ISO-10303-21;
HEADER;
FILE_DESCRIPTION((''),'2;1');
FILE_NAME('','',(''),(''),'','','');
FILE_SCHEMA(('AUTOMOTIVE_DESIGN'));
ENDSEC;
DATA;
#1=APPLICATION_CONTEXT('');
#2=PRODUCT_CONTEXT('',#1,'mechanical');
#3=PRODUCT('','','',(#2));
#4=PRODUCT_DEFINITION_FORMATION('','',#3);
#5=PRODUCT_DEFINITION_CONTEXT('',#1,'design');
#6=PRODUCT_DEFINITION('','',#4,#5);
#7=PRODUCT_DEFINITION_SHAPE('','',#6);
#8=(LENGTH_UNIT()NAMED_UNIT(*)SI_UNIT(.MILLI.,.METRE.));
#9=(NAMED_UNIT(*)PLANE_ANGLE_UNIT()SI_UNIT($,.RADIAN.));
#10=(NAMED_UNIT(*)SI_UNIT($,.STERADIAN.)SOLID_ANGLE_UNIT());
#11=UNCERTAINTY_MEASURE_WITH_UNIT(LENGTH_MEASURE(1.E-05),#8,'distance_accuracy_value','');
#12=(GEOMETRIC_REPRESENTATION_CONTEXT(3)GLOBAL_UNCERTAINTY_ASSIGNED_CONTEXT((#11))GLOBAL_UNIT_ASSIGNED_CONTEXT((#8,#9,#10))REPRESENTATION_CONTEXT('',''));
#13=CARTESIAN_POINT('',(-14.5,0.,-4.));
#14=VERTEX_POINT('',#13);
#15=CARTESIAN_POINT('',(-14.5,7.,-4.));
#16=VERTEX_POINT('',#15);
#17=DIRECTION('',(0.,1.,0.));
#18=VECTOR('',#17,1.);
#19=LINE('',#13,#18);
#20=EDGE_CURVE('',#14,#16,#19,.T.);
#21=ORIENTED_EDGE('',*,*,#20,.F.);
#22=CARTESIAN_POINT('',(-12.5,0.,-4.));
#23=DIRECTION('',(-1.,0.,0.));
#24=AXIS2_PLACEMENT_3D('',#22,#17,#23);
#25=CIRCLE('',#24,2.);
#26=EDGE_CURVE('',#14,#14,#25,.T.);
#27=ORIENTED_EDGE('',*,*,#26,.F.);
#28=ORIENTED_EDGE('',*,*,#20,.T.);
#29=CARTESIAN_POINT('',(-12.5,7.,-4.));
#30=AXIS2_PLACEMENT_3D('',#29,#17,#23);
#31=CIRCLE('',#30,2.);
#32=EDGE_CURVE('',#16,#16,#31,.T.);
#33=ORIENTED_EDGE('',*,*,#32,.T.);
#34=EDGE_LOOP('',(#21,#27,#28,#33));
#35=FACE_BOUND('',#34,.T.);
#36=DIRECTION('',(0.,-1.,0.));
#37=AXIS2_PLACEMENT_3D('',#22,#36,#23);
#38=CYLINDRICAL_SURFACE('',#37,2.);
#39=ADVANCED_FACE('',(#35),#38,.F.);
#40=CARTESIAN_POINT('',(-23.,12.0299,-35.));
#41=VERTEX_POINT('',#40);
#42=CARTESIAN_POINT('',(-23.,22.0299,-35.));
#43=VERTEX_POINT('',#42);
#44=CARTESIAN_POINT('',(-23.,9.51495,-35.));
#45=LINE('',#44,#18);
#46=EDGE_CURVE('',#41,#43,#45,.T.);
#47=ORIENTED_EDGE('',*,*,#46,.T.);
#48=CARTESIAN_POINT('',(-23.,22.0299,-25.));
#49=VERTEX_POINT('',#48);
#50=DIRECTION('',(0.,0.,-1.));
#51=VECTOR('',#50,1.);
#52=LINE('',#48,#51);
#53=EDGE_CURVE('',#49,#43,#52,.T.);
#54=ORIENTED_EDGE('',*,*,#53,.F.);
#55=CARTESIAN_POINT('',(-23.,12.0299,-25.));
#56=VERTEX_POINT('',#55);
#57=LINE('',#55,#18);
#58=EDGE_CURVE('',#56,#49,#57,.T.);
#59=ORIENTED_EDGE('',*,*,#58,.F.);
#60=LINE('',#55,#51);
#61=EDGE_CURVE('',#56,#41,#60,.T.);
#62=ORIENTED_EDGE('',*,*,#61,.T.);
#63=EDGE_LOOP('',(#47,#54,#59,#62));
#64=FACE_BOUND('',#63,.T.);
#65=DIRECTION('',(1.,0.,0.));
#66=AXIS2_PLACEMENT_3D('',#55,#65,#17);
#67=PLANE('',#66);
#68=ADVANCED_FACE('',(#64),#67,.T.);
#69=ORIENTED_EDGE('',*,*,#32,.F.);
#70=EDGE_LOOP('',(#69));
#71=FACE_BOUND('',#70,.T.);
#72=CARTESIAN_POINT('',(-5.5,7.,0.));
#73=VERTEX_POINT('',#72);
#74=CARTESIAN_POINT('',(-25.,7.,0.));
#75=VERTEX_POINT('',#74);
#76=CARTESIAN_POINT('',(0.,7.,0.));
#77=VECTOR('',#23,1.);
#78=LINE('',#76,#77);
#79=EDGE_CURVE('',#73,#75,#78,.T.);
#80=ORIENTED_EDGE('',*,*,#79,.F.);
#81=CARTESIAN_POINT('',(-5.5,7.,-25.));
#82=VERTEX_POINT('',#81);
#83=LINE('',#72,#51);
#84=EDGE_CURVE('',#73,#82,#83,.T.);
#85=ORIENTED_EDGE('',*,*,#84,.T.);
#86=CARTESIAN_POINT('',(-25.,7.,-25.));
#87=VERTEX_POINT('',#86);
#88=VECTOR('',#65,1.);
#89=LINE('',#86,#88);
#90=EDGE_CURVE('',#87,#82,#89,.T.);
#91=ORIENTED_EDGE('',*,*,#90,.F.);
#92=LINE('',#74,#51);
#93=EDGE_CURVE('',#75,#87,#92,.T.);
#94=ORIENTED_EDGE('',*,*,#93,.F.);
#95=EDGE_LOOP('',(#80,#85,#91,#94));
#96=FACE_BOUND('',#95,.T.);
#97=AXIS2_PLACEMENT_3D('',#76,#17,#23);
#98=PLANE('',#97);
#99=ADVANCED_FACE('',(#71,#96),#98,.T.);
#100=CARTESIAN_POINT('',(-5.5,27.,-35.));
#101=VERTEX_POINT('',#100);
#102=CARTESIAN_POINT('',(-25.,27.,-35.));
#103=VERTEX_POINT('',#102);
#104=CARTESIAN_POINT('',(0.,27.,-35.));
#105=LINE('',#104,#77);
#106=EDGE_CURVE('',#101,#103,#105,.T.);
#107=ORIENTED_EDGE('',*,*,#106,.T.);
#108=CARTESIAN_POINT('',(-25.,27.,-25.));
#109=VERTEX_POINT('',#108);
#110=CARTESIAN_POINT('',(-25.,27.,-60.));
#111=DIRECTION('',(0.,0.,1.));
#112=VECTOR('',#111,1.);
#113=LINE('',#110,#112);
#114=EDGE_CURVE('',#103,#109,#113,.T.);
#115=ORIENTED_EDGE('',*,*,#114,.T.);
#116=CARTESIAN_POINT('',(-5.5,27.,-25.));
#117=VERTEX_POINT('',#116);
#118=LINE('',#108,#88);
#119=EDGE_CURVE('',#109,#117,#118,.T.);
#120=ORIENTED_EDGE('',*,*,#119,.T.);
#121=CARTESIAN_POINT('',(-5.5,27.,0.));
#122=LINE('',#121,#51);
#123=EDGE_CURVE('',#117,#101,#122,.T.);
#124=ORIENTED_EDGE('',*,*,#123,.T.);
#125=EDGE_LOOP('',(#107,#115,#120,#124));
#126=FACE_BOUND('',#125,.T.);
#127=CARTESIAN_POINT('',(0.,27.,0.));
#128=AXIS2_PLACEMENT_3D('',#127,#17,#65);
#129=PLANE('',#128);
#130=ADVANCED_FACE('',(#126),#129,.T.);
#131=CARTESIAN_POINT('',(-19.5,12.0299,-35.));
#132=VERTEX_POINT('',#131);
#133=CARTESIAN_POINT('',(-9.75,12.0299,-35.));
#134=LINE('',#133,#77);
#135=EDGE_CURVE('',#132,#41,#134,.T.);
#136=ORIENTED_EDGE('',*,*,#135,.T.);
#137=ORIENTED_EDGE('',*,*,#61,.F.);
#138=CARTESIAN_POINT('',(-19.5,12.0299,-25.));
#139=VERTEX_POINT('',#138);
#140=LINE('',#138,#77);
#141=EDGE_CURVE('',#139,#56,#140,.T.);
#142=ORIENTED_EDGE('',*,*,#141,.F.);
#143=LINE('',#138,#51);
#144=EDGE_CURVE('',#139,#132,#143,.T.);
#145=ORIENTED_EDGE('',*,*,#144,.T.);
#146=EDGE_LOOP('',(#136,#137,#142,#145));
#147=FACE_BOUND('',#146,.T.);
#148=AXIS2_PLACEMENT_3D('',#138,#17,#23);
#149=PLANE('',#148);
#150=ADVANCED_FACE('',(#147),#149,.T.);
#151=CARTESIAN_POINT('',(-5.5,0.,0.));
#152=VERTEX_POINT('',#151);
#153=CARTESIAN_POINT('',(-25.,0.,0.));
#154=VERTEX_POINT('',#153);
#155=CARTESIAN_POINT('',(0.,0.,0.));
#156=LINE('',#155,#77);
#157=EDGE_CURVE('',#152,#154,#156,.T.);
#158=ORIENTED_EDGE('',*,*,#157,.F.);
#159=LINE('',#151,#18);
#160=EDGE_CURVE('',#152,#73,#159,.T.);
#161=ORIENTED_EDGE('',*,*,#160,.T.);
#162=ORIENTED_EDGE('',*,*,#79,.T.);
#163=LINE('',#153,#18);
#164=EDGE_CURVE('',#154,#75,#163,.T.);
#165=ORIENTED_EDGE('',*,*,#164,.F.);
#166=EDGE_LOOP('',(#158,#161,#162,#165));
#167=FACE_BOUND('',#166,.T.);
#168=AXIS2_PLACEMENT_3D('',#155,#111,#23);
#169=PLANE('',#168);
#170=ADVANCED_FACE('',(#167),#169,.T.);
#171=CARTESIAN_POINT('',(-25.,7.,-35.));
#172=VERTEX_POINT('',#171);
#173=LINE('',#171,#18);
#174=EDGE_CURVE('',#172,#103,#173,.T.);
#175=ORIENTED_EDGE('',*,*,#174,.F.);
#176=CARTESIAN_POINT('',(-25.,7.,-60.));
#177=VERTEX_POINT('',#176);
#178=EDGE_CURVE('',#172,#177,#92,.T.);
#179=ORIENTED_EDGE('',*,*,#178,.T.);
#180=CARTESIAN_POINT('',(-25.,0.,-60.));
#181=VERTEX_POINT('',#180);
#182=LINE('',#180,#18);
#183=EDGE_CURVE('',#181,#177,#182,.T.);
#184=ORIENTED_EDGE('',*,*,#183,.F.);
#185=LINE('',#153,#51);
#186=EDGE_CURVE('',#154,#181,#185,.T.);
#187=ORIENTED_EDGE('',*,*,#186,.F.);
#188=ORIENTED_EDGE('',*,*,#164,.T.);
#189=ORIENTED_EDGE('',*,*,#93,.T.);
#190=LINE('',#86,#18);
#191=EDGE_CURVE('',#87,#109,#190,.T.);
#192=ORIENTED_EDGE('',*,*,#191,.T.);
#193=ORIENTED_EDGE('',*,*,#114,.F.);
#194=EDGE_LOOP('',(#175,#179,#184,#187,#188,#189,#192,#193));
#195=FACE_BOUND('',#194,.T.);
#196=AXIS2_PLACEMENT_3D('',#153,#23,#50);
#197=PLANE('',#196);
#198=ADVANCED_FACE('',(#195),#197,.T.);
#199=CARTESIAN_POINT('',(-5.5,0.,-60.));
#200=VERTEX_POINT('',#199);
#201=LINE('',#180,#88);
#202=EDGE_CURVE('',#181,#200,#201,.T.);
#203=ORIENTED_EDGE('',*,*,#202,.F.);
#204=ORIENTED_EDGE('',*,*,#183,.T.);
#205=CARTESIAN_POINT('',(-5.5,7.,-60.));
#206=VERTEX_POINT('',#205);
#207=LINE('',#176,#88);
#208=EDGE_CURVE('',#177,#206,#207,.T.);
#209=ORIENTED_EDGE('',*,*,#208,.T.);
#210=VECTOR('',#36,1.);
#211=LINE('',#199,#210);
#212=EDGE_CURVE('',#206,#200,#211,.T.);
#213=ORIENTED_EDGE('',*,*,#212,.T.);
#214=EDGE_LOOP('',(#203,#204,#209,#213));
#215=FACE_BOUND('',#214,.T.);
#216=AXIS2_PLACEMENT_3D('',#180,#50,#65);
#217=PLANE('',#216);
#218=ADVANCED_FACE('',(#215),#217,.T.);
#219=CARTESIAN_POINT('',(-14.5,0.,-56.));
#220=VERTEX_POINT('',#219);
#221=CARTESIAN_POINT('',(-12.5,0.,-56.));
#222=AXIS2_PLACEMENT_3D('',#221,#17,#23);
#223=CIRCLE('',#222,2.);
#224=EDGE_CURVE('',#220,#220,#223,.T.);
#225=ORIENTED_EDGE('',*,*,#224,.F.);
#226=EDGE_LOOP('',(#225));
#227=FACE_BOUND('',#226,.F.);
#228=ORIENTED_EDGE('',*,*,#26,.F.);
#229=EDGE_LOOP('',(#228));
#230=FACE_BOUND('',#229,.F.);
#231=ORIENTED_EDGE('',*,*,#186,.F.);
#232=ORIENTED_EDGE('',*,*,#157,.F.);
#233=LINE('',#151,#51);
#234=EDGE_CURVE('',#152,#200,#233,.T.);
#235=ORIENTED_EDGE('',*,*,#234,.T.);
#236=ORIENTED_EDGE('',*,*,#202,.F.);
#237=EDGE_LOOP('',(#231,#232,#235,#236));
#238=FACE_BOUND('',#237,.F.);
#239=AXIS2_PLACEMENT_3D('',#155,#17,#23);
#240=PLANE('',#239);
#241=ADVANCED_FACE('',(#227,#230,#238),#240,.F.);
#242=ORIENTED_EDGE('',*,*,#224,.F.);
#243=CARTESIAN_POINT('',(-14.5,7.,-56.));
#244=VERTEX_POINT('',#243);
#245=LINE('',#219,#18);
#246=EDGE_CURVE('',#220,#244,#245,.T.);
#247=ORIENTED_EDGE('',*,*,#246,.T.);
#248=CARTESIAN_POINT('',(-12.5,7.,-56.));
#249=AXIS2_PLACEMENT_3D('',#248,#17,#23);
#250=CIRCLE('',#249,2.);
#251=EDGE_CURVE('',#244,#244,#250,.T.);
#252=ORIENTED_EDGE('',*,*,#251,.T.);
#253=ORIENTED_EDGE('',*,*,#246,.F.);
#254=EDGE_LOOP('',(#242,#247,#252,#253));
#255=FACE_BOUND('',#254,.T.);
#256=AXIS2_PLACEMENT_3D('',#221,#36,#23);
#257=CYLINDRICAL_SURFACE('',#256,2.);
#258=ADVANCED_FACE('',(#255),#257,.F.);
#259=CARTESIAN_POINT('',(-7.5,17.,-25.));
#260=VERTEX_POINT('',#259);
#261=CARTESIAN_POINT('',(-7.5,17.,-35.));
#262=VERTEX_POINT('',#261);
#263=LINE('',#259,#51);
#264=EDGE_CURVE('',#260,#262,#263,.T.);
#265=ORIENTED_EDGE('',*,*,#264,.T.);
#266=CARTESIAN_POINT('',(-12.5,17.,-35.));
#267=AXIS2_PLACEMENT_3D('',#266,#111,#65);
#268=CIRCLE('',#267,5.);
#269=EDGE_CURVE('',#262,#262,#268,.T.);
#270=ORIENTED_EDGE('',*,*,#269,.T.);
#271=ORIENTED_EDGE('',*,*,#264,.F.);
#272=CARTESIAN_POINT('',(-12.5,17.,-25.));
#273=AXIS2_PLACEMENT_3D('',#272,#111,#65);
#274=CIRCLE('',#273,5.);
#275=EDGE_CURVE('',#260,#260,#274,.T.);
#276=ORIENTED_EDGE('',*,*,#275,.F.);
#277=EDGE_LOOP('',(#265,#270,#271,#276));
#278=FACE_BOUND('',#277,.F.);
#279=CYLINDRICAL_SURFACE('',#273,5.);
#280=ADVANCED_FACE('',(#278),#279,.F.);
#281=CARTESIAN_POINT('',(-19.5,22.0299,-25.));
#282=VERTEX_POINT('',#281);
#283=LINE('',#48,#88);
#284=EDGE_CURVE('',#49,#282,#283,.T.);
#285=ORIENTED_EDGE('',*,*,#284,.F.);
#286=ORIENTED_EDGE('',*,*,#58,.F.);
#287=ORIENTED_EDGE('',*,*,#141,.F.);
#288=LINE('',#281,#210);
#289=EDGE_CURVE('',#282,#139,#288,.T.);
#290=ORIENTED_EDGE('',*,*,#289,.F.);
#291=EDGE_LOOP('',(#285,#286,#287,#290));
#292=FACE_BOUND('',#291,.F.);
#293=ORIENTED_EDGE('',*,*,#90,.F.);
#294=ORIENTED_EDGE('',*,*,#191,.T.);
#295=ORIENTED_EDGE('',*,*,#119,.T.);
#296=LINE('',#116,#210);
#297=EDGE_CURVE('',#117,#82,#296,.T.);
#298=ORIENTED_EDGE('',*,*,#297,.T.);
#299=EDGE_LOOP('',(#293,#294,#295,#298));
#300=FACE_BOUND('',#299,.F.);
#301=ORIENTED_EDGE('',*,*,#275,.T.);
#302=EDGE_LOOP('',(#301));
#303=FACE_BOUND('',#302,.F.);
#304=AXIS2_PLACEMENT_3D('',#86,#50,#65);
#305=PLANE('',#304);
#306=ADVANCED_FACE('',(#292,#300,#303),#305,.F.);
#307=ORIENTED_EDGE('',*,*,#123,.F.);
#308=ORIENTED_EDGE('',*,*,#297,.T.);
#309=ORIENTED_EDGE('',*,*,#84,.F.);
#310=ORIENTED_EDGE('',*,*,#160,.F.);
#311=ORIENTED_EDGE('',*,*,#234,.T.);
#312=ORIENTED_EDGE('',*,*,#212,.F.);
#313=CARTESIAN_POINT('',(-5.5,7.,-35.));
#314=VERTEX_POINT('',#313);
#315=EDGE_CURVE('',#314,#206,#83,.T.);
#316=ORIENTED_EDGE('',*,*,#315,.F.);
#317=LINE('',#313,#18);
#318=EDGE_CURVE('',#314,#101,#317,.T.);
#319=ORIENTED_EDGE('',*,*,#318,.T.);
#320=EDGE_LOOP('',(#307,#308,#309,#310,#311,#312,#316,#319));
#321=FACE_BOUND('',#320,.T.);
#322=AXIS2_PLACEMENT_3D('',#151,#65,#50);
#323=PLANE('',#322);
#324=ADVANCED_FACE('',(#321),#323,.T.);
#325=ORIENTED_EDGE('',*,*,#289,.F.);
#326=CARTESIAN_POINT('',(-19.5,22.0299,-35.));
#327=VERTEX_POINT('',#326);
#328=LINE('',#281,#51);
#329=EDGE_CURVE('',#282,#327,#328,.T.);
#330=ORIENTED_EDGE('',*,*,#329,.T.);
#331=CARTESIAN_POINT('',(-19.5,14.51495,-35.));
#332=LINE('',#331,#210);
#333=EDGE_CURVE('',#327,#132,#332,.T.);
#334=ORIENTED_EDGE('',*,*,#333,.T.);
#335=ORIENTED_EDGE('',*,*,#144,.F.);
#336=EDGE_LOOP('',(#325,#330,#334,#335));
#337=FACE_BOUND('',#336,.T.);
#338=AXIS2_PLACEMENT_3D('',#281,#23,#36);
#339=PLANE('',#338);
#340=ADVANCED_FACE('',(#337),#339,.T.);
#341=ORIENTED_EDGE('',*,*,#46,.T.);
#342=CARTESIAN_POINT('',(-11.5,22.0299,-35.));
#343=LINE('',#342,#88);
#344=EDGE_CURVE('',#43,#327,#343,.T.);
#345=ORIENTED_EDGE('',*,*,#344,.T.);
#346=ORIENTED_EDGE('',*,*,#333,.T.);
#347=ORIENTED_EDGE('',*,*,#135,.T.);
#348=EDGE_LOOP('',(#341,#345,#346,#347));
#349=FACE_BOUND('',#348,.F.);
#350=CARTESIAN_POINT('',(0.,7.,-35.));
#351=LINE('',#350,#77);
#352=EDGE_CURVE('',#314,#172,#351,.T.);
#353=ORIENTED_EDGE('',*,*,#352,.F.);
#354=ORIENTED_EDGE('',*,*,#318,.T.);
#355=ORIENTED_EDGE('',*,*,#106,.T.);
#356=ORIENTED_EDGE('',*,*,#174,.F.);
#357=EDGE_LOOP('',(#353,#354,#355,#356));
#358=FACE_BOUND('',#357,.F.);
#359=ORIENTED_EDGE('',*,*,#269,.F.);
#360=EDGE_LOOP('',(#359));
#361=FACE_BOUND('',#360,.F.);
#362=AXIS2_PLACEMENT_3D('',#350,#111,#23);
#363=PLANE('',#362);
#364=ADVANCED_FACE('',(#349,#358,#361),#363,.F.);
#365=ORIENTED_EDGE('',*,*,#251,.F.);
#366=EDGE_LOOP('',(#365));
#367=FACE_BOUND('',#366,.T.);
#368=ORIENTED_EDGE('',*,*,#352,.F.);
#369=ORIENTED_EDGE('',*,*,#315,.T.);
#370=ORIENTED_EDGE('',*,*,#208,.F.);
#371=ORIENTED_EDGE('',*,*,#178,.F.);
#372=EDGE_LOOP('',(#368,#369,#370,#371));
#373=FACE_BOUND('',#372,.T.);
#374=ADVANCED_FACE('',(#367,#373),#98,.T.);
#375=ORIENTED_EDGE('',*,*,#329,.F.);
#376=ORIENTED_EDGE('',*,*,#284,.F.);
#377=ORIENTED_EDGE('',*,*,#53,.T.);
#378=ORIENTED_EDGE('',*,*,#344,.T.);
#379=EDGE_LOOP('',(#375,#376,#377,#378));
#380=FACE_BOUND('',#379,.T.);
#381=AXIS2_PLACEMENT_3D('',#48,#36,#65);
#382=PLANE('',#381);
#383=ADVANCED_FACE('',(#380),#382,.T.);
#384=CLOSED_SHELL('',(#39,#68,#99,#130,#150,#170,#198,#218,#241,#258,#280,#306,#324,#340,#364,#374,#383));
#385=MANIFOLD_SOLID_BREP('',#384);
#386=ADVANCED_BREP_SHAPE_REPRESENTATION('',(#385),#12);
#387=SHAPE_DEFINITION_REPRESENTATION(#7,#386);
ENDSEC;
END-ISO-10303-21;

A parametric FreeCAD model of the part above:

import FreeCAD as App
import Part
import Sketcher
from FreeCAD import Vector

doc = App.newDocument("Part")
body = doc.addObject("PartDesign::Body", "Body")

# Sketch on XZ plane
sketch1 = body.newObject("Sketcher::SketchObject", "Sketch")
sketch1.AttachmentSupport = (doc.getObject("XZ_Plane"), [""])
sketch1.MapMode = "FlatFace"
sketch1.addGeometry([
    Part.LineSegment(Vector(-25, 0, 0), Vector(0, 0, 0)),  # 0
    Part.LineSegment(Vector(0, 0, 0), Vector(0, -60, 0)),  # 1
    Part.LineSegment(Vector(0, -60, 0), Vector(-25, -60, 0)),  # 2
    Part.LineSegment(Vector(-25, -60, 0), Vector(-25, 0, 0)),  # 3
    Part.Circle(Vector(-12.5, -56, 0), Vector(0, 0, 1), 2),  # 4
    Part.Circle(Vector(-12.5, -4, 0), Vector(0, 0, 1), 2),  # 5
], False)
sketch1.addConstraint([
    Sketcher.Constraint("Coincident", 0, 2, 1, 1),
    Sketcher.Constraint("Coincident", 1, 2, 2, 1),
    Sketcher.Constraint("Coincident", 2, 2, 3, 1),
    Sketcher.Constraint("Coincident", 3, 2, 0, 1),
    Sketcher.Constraint("Horizontal", 0),
    Sketcher.Constraint("Vertical", 1),
    Sketcher.Constraint("Horizontal", 2),
    Sketcher.Constraint("Vertical", 3),
    Sketcher.Constraint("Coincident", 0, 2, -1, 1),
    Sketcher.Constraint("Equal", 4, 5),
    Sketcher.Constraint("Vertical", 4, 3, 5, 3),
    Sketcher.Constraint("Diameter", 4, 4.0),
    Sketcher.Constraint("DistanceX", 0, 1, 0, 2, 25.0),
    Sketcher.Constraint("DistanceY", 1, 2, 1, 1, 60.0),
    Sketcher.Constraint("DistanceY", 5, 3, -1, 1, 4.0),
    Sketcher.Constraint("DistanceY", 4, 3, 5, 3, 52.0),
    Sketcher.Constraint("DistanceX", 4, 3, -1, 1, 12.5),
])
pad1 = body.newObject("PartDesign::Pad", "Pad")
pad1.Profile = sketch1
pad1.Length = 7
pad1.Reversed = True

# Sketch on XZ plane
sketch2 = body.newObject("Sketcher::SketchObject", "Sketch001")
sketch2.AttachmentSupport = (doc.getObject("XZ_Plane"), [""])
sketch2.MapMode = "FlatFace"
sketch2.AttachmentOffset = App.Placement(Vector(0, 0, -7), App.Rotation())
sketch2.addGeometry([
    Part.LineSegment(Vector(0, -35, 0), Vector(-25, -35, 0)),
    Part.LineSegment(Vector(-25, -35, 0), Vector(-25, -25, 0)),
    Part.LineSegment(Vector(-25, -25, 0), Vector(0, -25, 0)),
    Part.LineSegment(Vector(0, -25, 0), Vector(0, -35, 0)),
], False)
sketch2.addConstraint([
    Sketcher.Constraint("Coincident", 0, 2, 1, 1),
    Sketcher.Constraint("Coincident", 1, 2, 2, 1),
    Sketcher.Constraint("Coincident", 2, 2, 3, 1),
    Sketcher.Constraint("Coincident", 3, 2, 0, 1),
    Sketcher.Constraint("Horizontal", 0),
    Sketcher.Constraint("Vertical", 1),
    Sketcher.Constraint("Horizontal", 2),
    Sketcher.Constraint("Vertical", 3),
    Sketcher.Constraint("PointOnObject", 2, 2, -2),
    Sketcher.Constraint("DistanceX", 0, 2, 0, 1, 25.0),
    Sketcher.Constraint("DistanceY", 1, 1, 1, 2, 10.0),
    Sketcher.Constraint("DistanceY", 1, 2, -1, 1, 25.0),
])
pad2 = body.newObject("PartDesign::Pad", "Pad001")
pad2.Profile = sketch2
pad2.Length = 20
pad2.Reversed = True

# Sketch on XY plane
sketch3 = body.newObject("Sketcher::SketchObject", "Sketch002")
sketch3.AttachmentSupport = (doc.getObject("XY_Plane"), [""])
sketch3.MapMode = "FlatFace"
sketch3.AttachmentOffset = App.Placement(Vector(0, 0, -25), App.Rotation())
sketch3.addGeometry([
    Part.Circle(Vector(-12.5, 17, 0), Vector(0, 0, 1), 5),  # 0
    Part.LineSegment(Vector(-19.5, 22, 0), Vector(-23, 22, 0)),  # 1
    Part.LineSegment(Vector(-23, 22, 0), Vector(-23, 12, 0)),  # 2
    Part.LineSegment(Vector(-23, 12, 0), Vector(-19.5, 12, 0)),  # 3
    Part.LineSegment(Vector(-19.5, 12, 0), Vector(-19.5, 22, 0)),  # 4
    Part.LineSegment(Vector(-2, 22, 0), Vector(-5.5, 22, 0)),  # 5
    Part.LineSegment(Vector(-5.5, 22, 0), Vector(-5.5, 12, 0)),  # 6
    Part.LineSegment(Vector(-5.5, 12, 0), Vector(-2, 12, 0)),  # 7
    Part.LineSegment(Vector(-2, 12, 0), Vector(-2, 22, 0)),  # 8
], False)
sketch3.addConstraint([
    Sketcher.Constraint("Coincident", 1, 2, 2, 1),
    Sketcher.Constraint("Coincident", 2, 2, 3, 1),
    Sketcher.Constraint("Coincident", 3, 2, 4, 1),
    Sketcher.Constraint("Coincident", 4, 2, 1, 1),
    Sketcher.Constraint("Coincident", 5, 2, 6, 1),
    Sketcher.Constraint("Coincident", 6, 2, 7, 1),
    Sketcher.Constraint("Coincident", 7, 2, 8, 1),
    Sketcher.Constraint("Coincident", 8, 2, 5, 1),
    Sketcher.Constraint("Horizontal", 1),
    Sketcher.Constraint("Vertical", 2),
    Sketcher.Constraint("Horizontal", 3),
    Sketcher.Constraint("Vertical", 4),
    Sketcher.Constraint("Horizontal", 5),
    Sketcher.Constraint("Vertical", 6),
    Sketcher.Constraint("Horizontal", 7),
    Sketcher.Constraint("Vertical", 8),
    Sketcher.Constraint("Horizontal", 4, 2, 5, 2),
    Sketcher.Constraint("Horizontal", 3, 2, 6, 2),
    Sketcher.Constraint("Equal", 3, 5),
    Sketcher.Constraint("Diameter", 0, 10.0),
    Sketcher.Constraint("DistanceY", 2, 2, 2, 1, 10.0),
    Sketcher.Constraint("DistanceX", 1, 2, 1, 1, 3.5),
    Sketcher.Constraint("DistanceX", 3, 2, 0, 3, 7.0),
    Sketcher.Constraint("DistanceX", 0, 3, 5, 2, 7.0),
    Sketcher.Constraint("DistanceX", 0, 3, -1, 1, 12.5),
    Sketcher.Constraint("DistanceY", -1, 1, 0, 3, 17.0),
    Sketcher.Constraint("DistanceY", -1, 1, 1, 2, 22.03),
])
pocket1 = body.newObject("PartDesign::Pocket", "Pocket")
pocket1.Profile = sketch3
pocket1.Length = 20

# Sketch on YZ plane
sketch4 = body.newObject("Sketcher::SketchObject", "Sketch003")
sketch4.AttachmentSupport = (doc.getObject("YZ_Plane"), [""])
sketch4.MapMode = "FlatFace"
sketch4.addGeometry([
    Part.LineSegment(Vector(30, -64, 0), Vector(30, 8, 0)),
    Part.LineSegment(Vector(30, 8, 0), Vector(-9, 8, 0)),
    Part.LineSegment(Vector(-9, 8, 0), Vector(-9, -64, 0)),
    Part.LineSegment(Vector(-9, -64, 0), Vector(30, -64, 0)),
], False)
sketch4.addConstraint([
    Sketcher.Constraint("Coincident", 0, 2, 1, 1),
    Sketcher.Constraint("Coincident", 1, 2, 2, 1),
    Sketcher.Constraint("Coincident", 2, 2, 3, 1),
    Sketcher.Constraint("Coincident", 3, 2, 0, 1),
    Sketcher.Constraint("Vertical", 0),
    Sketcher.Constraint("Horizontal", 1),
    Sketcher.Constraint("Vertical", 2),
    Sketcher.Constraint("Horizontal", 3),
    Sketcher.Constraint("DistanceX", 1, 2, 1, 1, 39.561),
    Sketcher.Constraint("DistanceY", 0, 1, 0, 2, 71.7213),
    Sketcher.Constraint("DistanceX", -1, 1, 0, 2, 30.1503),
    Sketcher.Constraint("DistanceY", -1, 1, 0, 2, 8.0858),
])
pocket2 = body.newObject("PartDesign::Pocket", "Pocket001")
pocket2.Profile = sketch4
pocket2.Length = 5.5

doc.recompute()
